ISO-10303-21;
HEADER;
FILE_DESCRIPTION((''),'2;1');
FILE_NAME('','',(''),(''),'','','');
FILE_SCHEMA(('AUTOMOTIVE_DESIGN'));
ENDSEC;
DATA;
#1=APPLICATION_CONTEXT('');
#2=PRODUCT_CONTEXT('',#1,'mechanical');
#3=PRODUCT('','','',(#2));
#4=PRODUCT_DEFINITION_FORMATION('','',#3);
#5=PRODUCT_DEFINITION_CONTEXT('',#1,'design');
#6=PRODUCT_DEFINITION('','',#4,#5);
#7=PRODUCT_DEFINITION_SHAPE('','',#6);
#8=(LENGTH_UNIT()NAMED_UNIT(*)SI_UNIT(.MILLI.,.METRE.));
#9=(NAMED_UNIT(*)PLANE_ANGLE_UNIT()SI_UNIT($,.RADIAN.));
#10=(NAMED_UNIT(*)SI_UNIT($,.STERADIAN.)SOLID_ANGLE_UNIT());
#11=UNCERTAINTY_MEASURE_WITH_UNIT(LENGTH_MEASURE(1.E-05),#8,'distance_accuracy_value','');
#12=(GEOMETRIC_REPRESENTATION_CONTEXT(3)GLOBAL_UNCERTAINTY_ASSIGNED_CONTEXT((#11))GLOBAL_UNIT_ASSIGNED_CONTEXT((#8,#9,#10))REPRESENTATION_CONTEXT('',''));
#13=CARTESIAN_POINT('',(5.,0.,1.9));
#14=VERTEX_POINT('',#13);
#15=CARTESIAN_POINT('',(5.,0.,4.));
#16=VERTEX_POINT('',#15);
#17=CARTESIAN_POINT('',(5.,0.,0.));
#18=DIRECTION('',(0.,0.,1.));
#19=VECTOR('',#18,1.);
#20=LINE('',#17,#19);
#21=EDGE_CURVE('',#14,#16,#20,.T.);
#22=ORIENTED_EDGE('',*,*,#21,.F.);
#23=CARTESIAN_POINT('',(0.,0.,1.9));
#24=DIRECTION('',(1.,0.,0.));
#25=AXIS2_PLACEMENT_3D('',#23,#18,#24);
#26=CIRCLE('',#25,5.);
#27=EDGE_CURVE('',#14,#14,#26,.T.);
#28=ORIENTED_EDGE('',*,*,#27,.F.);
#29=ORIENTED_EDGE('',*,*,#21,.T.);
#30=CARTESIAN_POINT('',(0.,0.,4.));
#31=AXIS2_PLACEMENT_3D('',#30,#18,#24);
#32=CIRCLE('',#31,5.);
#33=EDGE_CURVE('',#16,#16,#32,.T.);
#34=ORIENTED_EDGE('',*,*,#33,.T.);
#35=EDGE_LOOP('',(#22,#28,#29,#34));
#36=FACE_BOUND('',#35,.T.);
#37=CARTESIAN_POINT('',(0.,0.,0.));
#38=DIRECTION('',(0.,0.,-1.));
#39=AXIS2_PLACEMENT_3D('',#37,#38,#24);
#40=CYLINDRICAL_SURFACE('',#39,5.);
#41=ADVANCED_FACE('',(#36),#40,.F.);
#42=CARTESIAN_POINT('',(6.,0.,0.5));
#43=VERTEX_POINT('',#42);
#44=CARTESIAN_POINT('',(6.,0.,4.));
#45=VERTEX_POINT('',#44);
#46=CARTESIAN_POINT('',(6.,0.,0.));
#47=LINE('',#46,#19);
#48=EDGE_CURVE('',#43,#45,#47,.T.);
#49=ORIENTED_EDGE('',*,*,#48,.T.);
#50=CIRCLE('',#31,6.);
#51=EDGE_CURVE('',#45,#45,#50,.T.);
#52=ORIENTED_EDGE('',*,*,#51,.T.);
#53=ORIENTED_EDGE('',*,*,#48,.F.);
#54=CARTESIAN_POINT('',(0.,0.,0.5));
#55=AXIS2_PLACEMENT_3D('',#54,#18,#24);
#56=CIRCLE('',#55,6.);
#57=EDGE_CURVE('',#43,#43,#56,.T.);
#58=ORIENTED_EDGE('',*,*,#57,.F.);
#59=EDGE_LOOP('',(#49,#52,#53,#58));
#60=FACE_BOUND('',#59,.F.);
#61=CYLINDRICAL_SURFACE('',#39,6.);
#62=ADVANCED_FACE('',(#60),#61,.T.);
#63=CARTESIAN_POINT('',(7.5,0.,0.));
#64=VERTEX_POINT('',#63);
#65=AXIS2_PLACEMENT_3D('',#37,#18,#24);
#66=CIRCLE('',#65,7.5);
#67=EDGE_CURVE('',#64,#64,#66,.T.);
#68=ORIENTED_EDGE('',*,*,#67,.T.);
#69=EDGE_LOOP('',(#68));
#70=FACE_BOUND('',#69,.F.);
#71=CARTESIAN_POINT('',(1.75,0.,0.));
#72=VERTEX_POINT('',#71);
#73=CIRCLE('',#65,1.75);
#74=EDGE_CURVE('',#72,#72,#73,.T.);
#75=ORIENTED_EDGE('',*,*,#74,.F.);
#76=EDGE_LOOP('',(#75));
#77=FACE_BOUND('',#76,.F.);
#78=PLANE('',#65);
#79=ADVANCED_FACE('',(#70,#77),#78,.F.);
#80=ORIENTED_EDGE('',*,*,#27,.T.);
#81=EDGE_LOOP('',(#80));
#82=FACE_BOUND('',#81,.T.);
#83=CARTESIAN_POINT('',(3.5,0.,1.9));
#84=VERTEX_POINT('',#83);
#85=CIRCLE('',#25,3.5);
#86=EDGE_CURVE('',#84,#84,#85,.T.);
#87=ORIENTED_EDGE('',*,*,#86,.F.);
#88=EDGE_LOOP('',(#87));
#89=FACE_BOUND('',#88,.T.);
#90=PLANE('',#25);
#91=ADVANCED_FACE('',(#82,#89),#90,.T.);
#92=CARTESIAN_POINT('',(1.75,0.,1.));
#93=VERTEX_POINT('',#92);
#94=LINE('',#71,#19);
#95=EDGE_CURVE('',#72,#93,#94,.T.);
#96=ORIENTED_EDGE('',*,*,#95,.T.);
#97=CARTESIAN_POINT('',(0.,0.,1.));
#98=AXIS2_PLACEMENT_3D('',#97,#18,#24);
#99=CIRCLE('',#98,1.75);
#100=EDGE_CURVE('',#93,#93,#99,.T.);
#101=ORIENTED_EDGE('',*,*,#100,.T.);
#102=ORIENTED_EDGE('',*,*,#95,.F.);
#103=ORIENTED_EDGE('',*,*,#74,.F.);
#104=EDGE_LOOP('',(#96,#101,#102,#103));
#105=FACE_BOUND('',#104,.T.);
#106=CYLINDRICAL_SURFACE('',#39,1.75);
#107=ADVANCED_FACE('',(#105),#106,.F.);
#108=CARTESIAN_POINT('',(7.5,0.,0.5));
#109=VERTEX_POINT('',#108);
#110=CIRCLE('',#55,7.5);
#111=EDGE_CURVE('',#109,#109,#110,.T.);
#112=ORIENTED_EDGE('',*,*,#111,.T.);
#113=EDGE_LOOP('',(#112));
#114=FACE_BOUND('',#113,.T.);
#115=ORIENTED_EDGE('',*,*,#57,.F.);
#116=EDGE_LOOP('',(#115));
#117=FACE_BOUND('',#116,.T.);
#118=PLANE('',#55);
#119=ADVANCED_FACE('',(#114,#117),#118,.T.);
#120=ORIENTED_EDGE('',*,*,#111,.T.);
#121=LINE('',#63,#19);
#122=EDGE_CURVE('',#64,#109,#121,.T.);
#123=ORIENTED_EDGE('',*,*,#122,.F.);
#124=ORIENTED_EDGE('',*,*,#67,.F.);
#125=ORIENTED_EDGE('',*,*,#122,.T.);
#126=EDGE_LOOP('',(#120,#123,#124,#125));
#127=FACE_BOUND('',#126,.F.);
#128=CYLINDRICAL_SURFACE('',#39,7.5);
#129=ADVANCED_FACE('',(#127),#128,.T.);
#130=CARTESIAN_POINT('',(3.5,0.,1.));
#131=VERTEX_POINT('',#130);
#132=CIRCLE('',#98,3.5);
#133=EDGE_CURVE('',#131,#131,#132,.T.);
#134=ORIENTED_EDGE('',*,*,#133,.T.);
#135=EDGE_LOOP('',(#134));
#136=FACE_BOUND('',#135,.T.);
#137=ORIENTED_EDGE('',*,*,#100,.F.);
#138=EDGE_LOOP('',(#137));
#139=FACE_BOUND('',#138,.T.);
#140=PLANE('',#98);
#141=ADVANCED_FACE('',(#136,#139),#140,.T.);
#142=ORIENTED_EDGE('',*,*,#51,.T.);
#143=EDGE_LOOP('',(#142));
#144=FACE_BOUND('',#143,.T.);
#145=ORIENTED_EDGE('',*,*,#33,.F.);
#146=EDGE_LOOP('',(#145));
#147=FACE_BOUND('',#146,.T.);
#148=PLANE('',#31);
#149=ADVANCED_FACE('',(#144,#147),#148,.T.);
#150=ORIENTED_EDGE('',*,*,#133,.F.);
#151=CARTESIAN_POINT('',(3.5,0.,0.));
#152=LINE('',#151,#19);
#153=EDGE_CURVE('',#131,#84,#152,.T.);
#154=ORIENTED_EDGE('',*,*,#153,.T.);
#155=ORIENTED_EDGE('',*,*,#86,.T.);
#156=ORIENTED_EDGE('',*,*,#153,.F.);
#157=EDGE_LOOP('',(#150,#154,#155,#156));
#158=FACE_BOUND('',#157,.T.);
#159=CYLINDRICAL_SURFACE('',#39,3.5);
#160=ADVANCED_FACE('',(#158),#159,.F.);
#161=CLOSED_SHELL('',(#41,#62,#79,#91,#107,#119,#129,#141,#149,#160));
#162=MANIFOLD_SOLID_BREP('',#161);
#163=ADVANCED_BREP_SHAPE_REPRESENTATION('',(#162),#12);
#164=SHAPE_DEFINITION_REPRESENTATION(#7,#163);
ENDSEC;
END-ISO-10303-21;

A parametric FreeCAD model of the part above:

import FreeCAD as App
import Part
import Sketcher

V = App.Vector
Q = App.Units.Quantity

doc = App.newDocument("Part")
params = doc.addObject("Spreadsheet::Sheet", "Params")
for row, (alias, value) in enumerate([
    ("sketch1_diameter", "12 mm"),
    ("sketch1_diameter2", "10 mm"),
    ("pad1_length", "4 mm"),
    ("sketch2_diameter", "15 mm"),
    ("sketch2_diameter2", "12 mm"),
    ("pad2_length", "0.5 mm"),
    ("sketch3_diameter", "10 mm"),
    ("sketch3_diameter2", "7 mm"),
    ("pad3_length", "1.9 mm"),
    ("sketch4_diameter", "7 mm"),
    ("sketch4_diameter2", "3.5 mm"),
    ("pad4_length", "1 mm"),
], start=1):
    params.set(f"A{row}", alias)
    params.set(f"B{row}", "=" + value)
    params.setAlias(f"B{row}", alias)

body = doc.addObject("PartDesign::Body", "Body")

# Sketch on XY plane
sketch1 = doc.addObject("Sketcher::SketchObject", "Sketch")
body.addObject(sketch1)
sketch1.AttachmentSupport = (doc.XY_Plane, [""])
sketch1.MapMode = "FlatFace"
sketch1.addGeometry(Part.Circle(V(0, 0, 0), V(0, 0, 1), 6), False)
sketch1.addGeometry(Part.Circle(V(0, 0, 0), V(0, 0, 1), 5), False)
sketch1.addConstraint(Sketcher.Constraint("Coincident", 0, 3, -1, 1))
sketch1.addConstraint(Sketcher.Constraint("Coincident", 1, 3, -1, 1))
sketch1.addConstraint(Sketcher.Constraint("Diameter", 0, Q("12 mm")))
sketch1.addConstraint(Sketcher.Constraint("Diameter", 1, Q("10 mm")))
sketch1.setExpression("Constraints[2]", "Params.sketch1_diameter")
sketch1.setExpression("Constraints[3]", "Params.sketch1_diameter2")
pad1 = doc.addObject("PartDesign::Pad", "Pad")
body.addObject(pad1)
pad1.Profile = sketch1
pad1.setExpression("Length", "Params.pad1_length")

# Sketch on XY plane
sketch2 = doc.addObject("Sketcher::SketchObject", "Sketch001")
body.addObject(sketch2)
sketch2.AttachmentSupport = (doc.XY_Plane, [""])
sketch2.MapMode = "FlatFace"
sketch2.addGeometry(Part.Circle(V(0, 0, 0), V(0, 0, 1), 8), False)
sketch2.addGeometry(Part.Circle(V(0, 0, 0), V(0, 0, 1), 6), False)
sketch2.addConstraint(Sketcher.Constraint("Coincident", 0, 3, -1, 1))
sketch2.addConstraint(Sketcher.Constraint("Coincident", 1, 3, -1, 1))
sketch2.addConstraint(Sketcher.Constraint("Diameter", 0, Q("15 mm")))
sketch2.addConstraint(Sketcher.Constraint("Diameter", 1, Q("12 mm")))
sketch2.setExpression("Constraints[2]", "Params.sketch2_diameter")
sketch2.setExpression("Constraints[3]", "Params.sketch2_diameter2")
pad2 = doc.addObject("PartDesign::Pad", "Pad001")
body.addObject(pad2)
pad2.Profile = sketch2
pad2.setExpression("Length", "Params.pad2_length")

# Sketch on XY plane
sketch3 = doc.addObject("Sketcher::SketchObject", "Sketch002")
body.addObject(sketch3)
sketch3.AttachmentSupport = (doc.XY_Plane, [""])
sketch3.MapMode = "FlatFace"
sketch3.addGeometry(Part.Circle(V(0, 0, 0), V(0, 0, 1), 5), False)
sketch3.addGeometry(Part.Circle(V(0, 0, 0), V(0, 0, 1), 3.5), False)
sketch3.addConstraint(Sketcher.Constraint("Coincident", 0, 3, -1, 1))
sketch3.addConstraint(Sketcher.Constraint("Coincident", 1, 3, -1, 1))
sketch3.addConstraint(Sketcher.Constraint("Diameter", 0, Q("10 mm")))
sketch3.addConstraint(Sketcher.Constraint("Diameter", 1, Q("7 mm")))
sketch3.setExpression("Constraints[2]", "Params.sketch3_diameter")
sketch3.setExpression("Constraints[3]", "Params.sketch3_diameter2")
pad3 = doc.addObject("PartDesign::Pad", "Pad002")
body.addObject(pad3)
pad3.Profile = sketch3
pad3.setExpression("Length", "Params.pad3_length")

# Sketch on XY plane
sketch4 = doc.addObject("Sketcher::SketchObject", "Sketch003")
body.addObject(sketch4)
sketch4.AttachmentSupport = (doc.XY_Plane, [""])
sketch4.MapMode = "FlatFace"
sketch4.addGeometry(Part.Circle(V(0, 0, 0), V(0, 0, 1), 3.5), False)
sketch4.addGeometry(Part.Circle(V(0, 0, 0), V(0, 0, 1), 1.8), False)
sketch4.addConstraint(Sketcher.Constraint("Coincident", 0, 3, -1, 1))
sketch4.addConstraint(Sketcher.Constraint("Coincident", 1, 3, -1, 1))
sketch4.addConstraint(Sketcher.Constraint("Diameter", 0, Q("7 mm")))
sketch4.addConstraint(Sketcher.Constraint("Diameter", 1, Q("3.5 mm")))
sketch4.setExpression("Constraints[2]", "Params.sketch4_diameter")
sketch4.setExpression("Constraints[3]", "Params.sketch4_diameter2")
pad4 = doc.addObject("PartDesign::Pad", "Pad003")
body.addObject(pad4)
pad4.Profile = sketch4
pad4.setExpression("Length", "Params.pad4_length")

doc.recompute()
